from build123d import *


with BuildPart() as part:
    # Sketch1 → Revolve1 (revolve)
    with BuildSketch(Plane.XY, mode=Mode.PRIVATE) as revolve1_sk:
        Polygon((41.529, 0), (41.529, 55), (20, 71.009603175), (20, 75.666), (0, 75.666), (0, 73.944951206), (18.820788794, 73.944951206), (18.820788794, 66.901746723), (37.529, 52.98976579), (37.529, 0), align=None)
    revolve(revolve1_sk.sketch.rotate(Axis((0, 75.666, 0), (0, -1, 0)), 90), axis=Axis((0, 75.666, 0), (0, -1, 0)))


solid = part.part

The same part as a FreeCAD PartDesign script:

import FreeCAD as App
import Part
import Sketcher
from FreeCAD import Vector


def add_polygon(sketch, points):
    """Adds a closed chain of lines whose ends are joined by coincident constraints."""
    first, n = sketch.GeometryCount, len(points)
    for a, b in zip(points, points[1:] + points[:1]):
        sketch.addGeometry(Part.LineSegment(App.Vector(*a, 0), App.Vector(*b, 0)), False)
    for i in range(n):
        sketch.addConstraint(Sketcher.Constraint("Coincident", first + i, 2, first + (i + 1) % n, 1))

doc = App.newDocument("Part")
body = doc.addObject("PartDesign::Body", "Body")

sketch1 = doc.addObject("Sketcher::SketchObject", "Sketch")
body.addObject(sketch1)
sketch1.AttachmentSupport = (doc.XY_Plane, [""])
sketch1.MapMode = "FlatFace"
add_polygon(sketch1, [(41.529, 0), (41.529, 55), (20, 71.009603), (20, 75.666), (0, 75.666), (0, 73.944951), (18.820789, 73.944951), (18.820789, 66.901747), (37.529, 52.989766), (37.529, 0)])
sketch1.addConstraint([
    Sketcher.Constraint("Vertical", 0),
    Sketcher.Constraint("Vertical", 2),
    Sketcher.Constraint("Horizontal", 3),
    Sketcher.Constraint("Vertical", 4),
    Sketcher.Constraint("Horizontal", 5),
    Sketcher.Constraint("Vertical", 6),
    Sketcher.Constraint("Vertical", 8),
    Sketcher.Constraint("Horizontal", 9),
    Sketcher.Constraint("PointOnObject", 3, 2, -2),
    Sketcher.Constraint("PointOnObject", 8, 2, -1),
    Sketcher.Constraint("Parallel", 1, 7),
    Sketcher.Constraint("DistanceX", 3, 2, 3, 1, 20.0),
    Sketcher.Constraint("DistanceX", 9, 1, 9, 2, 4.0),
    Sketcher.Constraint("DistanceY", 0, 1, 0, 2, 55.0),
    Sketcher.Constraint("DistanceX", -1, 1, 0, 2, 41.529),
    Sketcher.Constraint("DistanceY", -1, 1, 2, 2, 75.666),
    Sketcher.Constraint("DistanceX", 5, 1, 5, 2, 18.820789),
    Sketcher.Constraint("DistanceY", 4, 2, 4, 1, 1.721049),
    Sketcher.Constraint("DistanceY", 2, 1, 2, 2, 4.656397),
    Sketcher.Constraint("DistanceY", 6, 2, 6, 1, 7.043204),
])
revolution = doc.addObject("PartDesign::Revolution", "Revolution")
body.addObject(revolution)
revolution.Profile = sketch1
revolution.ReferenceAxis = (sketch1, ["V_Axis"])
revolution.Angle = 360

doc.recompute()
